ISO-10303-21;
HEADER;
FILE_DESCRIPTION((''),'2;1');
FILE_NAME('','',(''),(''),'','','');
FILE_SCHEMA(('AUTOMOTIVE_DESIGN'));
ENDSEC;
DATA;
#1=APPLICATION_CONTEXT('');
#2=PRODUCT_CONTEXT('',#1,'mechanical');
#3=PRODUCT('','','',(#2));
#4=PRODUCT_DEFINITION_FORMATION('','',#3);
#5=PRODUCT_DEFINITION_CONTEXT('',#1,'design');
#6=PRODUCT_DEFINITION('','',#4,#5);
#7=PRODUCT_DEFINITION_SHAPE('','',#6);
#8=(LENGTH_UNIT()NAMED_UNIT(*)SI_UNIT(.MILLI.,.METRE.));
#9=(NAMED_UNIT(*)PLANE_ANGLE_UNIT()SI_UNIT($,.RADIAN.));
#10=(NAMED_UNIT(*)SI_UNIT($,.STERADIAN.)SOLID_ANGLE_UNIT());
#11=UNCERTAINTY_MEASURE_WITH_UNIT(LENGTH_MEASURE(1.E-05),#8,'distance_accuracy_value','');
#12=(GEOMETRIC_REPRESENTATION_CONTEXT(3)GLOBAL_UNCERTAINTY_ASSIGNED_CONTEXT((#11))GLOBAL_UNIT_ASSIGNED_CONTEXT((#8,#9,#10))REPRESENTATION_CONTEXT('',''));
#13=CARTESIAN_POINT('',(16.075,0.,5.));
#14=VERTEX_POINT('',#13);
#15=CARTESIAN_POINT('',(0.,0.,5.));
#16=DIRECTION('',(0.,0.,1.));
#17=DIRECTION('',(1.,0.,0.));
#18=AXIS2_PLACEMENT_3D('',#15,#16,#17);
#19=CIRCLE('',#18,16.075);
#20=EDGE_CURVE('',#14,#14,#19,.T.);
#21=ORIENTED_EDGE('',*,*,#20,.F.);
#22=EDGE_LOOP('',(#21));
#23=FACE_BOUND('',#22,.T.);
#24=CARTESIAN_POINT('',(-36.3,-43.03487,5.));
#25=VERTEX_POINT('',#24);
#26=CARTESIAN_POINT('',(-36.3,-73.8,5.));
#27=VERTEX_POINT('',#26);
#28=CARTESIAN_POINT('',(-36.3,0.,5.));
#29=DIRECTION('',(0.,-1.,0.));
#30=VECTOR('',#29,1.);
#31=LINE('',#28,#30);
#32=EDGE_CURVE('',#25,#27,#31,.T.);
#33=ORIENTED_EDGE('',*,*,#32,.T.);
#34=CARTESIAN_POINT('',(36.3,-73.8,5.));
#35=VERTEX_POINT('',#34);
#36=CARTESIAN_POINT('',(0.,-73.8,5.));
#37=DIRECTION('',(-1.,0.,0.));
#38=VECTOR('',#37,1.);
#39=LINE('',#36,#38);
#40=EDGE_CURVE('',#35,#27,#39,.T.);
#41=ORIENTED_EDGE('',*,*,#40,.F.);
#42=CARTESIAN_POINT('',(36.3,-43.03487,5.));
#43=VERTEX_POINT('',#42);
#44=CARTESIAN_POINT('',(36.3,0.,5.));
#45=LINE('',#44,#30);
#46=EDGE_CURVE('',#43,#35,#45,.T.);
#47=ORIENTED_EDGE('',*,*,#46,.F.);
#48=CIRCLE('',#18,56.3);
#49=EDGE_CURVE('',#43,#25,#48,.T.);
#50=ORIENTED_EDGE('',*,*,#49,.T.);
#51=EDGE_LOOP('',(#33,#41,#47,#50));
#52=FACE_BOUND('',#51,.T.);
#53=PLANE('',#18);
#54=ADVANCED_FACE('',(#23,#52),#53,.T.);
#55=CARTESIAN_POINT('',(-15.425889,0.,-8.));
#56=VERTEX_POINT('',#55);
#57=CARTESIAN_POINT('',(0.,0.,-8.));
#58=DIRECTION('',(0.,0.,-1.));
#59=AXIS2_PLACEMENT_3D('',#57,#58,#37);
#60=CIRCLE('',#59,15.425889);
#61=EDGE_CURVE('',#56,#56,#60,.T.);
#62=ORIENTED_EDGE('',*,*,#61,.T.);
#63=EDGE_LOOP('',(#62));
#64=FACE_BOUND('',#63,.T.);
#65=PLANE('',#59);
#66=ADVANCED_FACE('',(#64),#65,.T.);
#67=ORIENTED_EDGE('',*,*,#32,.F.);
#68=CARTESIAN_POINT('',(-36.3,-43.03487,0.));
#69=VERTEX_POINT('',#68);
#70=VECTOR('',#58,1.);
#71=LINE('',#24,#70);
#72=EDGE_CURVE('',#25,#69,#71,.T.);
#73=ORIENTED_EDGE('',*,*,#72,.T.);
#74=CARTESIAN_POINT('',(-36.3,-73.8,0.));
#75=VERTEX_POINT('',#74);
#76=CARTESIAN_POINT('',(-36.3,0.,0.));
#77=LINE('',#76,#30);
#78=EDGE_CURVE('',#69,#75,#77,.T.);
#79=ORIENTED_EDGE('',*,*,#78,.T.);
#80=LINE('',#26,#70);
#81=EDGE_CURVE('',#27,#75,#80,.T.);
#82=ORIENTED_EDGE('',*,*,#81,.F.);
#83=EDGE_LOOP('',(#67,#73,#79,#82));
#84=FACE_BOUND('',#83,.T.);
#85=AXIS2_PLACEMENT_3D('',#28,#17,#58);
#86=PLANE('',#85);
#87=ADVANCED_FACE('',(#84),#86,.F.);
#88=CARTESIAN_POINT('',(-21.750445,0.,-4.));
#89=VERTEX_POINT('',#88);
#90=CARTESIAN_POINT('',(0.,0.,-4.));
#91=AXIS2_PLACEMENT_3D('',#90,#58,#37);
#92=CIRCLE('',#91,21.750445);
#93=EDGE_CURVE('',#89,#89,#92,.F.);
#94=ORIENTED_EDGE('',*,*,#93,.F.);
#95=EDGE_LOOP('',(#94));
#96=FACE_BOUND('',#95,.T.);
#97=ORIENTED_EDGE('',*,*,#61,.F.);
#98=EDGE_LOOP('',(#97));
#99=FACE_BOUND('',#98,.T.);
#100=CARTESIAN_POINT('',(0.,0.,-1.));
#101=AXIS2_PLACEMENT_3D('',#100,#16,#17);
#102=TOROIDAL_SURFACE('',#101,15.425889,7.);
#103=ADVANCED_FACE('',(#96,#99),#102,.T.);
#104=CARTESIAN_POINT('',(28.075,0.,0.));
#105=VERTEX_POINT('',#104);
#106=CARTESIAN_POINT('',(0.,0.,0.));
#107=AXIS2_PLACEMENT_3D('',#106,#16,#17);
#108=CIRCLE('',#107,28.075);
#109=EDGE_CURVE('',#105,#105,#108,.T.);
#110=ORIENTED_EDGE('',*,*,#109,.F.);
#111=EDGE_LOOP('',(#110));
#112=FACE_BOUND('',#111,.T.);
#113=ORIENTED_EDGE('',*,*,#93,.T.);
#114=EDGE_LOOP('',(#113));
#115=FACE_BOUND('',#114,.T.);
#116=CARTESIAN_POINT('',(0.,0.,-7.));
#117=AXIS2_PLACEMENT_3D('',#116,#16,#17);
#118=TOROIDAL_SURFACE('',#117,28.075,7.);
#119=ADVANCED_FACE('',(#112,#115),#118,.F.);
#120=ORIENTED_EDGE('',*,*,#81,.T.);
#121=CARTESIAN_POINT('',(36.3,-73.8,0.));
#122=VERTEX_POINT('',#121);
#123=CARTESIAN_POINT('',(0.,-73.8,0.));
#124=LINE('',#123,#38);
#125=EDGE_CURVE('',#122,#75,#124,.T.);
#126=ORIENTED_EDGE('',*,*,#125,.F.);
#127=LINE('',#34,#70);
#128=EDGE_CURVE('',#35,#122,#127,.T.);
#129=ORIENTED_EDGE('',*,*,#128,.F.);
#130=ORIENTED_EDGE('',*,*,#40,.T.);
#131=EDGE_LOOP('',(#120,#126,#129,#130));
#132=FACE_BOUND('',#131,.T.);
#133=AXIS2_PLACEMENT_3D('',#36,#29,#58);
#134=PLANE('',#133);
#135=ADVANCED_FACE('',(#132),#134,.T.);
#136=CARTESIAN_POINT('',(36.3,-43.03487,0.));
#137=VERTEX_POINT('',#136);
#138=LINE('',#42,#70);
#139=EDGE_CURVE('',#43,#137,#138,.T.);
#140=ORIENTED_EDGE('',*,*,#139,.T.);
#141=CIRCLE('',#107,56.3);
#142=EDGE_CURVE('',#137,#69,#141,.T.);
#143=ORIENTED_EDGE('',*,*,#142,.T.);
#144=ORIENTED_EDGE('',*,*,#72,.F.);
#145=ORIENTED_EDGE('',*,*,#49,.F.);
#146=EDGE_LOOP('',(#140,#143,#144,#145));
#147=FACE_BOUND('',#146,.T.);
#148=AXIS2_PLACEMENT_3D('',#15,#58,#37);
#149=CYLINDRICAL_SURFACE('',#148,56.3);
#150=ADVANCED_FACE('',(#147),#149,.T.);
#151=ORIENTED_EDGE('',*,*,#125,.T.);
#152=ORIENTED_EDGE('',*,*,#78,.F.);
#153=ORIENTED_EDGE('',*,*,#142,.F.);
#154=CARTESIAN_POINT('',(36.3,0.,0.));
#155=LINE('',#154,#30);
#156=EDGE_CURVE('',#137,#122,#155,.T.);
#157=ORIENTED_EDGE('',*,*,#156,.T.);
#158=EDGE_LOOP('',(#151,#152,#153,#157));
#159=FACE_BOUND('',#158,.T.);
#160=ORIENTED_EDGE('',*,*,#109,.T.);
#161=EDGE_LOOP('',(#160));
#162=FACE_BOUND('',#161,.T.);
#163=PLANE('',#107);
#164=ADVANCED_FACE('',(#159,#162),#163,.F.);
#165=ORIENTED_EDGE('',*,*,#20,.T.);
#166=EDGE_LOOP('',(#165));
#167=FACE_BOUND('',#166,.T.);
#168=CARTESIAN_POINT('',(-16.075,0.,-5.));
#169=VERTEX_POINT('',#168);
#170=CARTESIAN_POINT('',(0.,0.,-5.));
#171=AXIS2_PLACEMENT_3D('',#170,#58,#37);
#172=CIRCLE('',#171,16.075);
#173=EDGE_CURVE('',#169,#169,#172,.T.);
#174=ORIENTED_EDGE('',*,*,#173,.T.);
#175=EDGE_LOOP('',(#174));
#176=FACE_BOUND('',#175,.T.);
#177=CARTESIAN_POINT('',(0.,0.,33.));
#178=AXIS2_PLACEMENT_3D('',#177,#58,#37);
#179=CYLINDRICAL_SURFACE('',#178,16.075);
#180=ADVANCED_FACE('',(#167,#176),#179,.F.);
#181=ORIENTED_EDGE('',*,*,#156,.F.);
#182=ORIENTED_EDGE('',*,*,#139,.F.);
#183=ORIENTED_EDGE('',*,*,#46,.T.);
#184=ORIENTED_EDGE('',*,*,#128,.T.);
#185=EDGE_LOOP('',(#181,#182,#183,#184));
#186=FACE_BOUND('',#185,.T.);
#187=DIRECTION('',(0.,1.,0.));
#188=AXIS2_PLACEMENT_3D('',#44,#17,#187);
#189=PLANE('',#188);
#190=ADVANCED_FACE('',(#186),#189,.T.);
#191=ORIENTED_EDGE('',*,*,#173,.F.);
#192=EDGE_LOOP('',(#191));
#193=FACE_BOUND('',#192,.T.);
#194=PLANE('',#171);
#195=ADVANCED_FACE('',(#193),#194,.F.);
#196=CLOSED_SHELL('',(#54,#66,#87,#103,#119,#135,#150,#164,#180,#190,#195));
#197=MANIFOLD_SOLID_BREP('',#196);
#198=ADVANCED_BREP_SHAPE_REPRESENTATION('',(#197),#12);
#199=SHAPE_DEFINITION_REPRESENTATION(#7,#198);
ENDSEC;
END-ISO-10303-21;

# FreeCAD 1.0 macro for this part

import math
import FreeCAD as App
import Part
import Sketcher
from FreeCAD import Vector
Q = App.Units.Quantity


def edges_at(feature, points):
    """Names of the edges that pass closest to the given points."""
    edges = feature.Shape.Edges
    near = lambda p: min(range(len(edges)), key=lambda i: edges[i].distToShape(Part.Vertex(*p))[0])
    return sorted({f"Edge{near(p) + 1}" for p in points})

doc = App.newDocument("Part")
params = doc.addObject("Spreadsheet::Sheet", "Params")
for row, (alias, value) in enumerate([
    ("sketch1_radius", "56.3 mm"),
    ("sketch1_width", "72.6 mm"),
    ("pad1_length", "5 mm"),
    ("sketch2_diameter", "32.15 mm"),
    ("pocket1_length", "33 mm"),
    ("sketch3_diameter", "42.15 mm"),
    ("sketch3_diameter2", "32.15 mm"),
    ("pad2_length", "5 mm"),
    ("sketch4_diameter", "42.15 mm"),
    ("pad3_length", "3 mm"),
    ("fillet_radius", "7 mm"),
    ("fillet2_radius", "7 mm"),
], start=1):
    params.set(f"A{row}", alias)
    params.set(f"B{row}", "=" + value)
    params.setAlias(f"B{row}", alias)

body = doc.addObject("PartDesign::Body", "Body")

sketch1 = doc.addObject("Sketcher::SketchObject", "Sketch")
body.addObject(sketch1)
sketch1.AttachmentSupport = (doc.XY_Plane, [""])
sketch1.MapMode = "FlatFace"
sketch1.addGeometry(Part.ArcOfCircle(Part.Circle(Vector(0, 0, 0), Vector(0, 0, 1), 56), math.radians(-50), math.radians(230)), False)
sketch1.addGeometry(Part.LineSegment(Vector(-36, -43, 0), Vector(-36, -74, 0)), False)
sketch1.addGeometry(Part.LineSegment(Vector(-36, -74, 0), Vector(36, -74, 0)), False)
sketch1.addGeometry(Part.LineSegment(Vector(36, -74, 0), Vector(36, -43, 0)), False)
sketch1.addConstraint(Sketcher.Constraint("Coincident", 0, 2, 1, 1))
sketch1.addConstraint(Sketcher.Constraint("Coincident", 1, 2, 2, 1))
sketch1.addConstraint(Sketcher.Constraint("Coincident", 2, 2, 3, 1))
sketch1.addConstraint(Sketcher.Constraint("Coincident", 3, 2, 0, 1))
sketch1.addConstraint(Sketcher.Constraint("Vertical", 1))
sketch1.addConstraint(Sketcher.Constraint("Horizontal", 2))
sketch1.addConstraint(Sketcher.Constraint("Vertical", 3))
sketch1.addConstraint(Sketcher.Constraint("Coincident", 0, 3, -1, 1))
sketch1.addConstraint(Sketcher.Constraint("Horizontal", 0, 2, 3, 2))
sketch1.addConstraint(Sketcher.Constraint("Radius", 0, Q("56.3 mm")))
sketch1.addConstraint(Sketcher.Constraint("DistanceX", 2, 1, 2, 2, Q("72.6 mm")))
sketch1.addConstraint(Sketcher.Constraint("DistanceY", 1, 2, -1, 1, Q("73.8 mm")))
sketch1.setExpression("Constraints[9]", "Params.sketch1_radius")
sketch1.setExpression("Constraints[10]", "Params.sketch1_width")
pad1 = doc.addObject("PartDesign::Pad", "Pad")
body.addObject(pad1)
pad1.Profile = sketch1
pad1.setExpression("Length", "Params.pad1_length")

sketch2 = doc.addObject("Sketcher::SketchObject", "Sketch001")
body.addObject(sketch2)
sketch2.AttachmentSupport = (doc.XY_Plane, [""])
sketch2.MapMode = "FlatFace"
sketch2.addGeometry(Part.Circle(Vector(0, 0, 0), Vector(0, 0, 1), 16), False)
sketch2.addConstraint(Sketcher.Constraint("Coincident", 0, 3, -1, 1))
sketch2.addConstraint(Sketcher.Constraint("Diameter", 0, Q("32.15 mm")))
sketch2.setExpression("Constraints[1]", "Params.sketch2_diameter")
pocket1 = doc.addObject("PartDesign::Pocket", "Pocket")
body.addObject(pocket1)
pocket1.Profile = sketch2
pocket1.setExpression("Length", "Params.pocket1_length")
pocket1.Reversed = True

sketch3 = doc.addObject("Sketcher::SketchObject", "Sketch002")
body.addObject(sketch3)
sketch3.AttachmentSupport = (doc.XY_Plane, [""])
sketch3.MapMode = "FlatFace"
sketch3.AttachmentOffset = App.Placement(Vector(0, 0, -5), App.Rotation())
sketch3.addGeometry(Part.Circle(Vector(0, 0, 0), Vector(0, 0, 1), 21), False)
sketch3.addGeometry(Part.Circle(Vector(0, 0, 0), Vector(0, 0, 1), 16), False)
sketch3.addConstraint(Sketcher.Constraint("Coincident", 0, 3, -1, 1))
sketch3.addConstraint(Sketcher.Constraint("Coincident", 1, 3, -1, 1))
sketch3.addConstraint(Sketcher.Constraint("Diameter", 0, Q("42.15 mm")))
sketch3.addConstraint(Sketcher.Constraint("Diameter", 1, Q("32.15 mm")))
sketch3.setExpression("Constraints[2]", "Params.sketch3_diameter")
sketch3.setExpression("Constraints[3]", "Params.sketch3_diameter2")
pad2 = doc.addObject("PartDesign::Pad", "Pad001")
body.addObject(pad2)
pad2.Profile = sketch3
pad2.setExpression("Length", "Params.pad2_length")

sketch4 = doc.addObject("Sketcher::SketchObject", "Sketch003")
body.addObject(sketch4)
sketch4.AttachmentSupport = (doc.XY_Plane, [""])
sketch4.MapMode = "FlatFace"
sketch4.AttachmentOffset = App.Placement(Vector(0, 0, -8), App.Rotation())
sketch4.addGeometry(Part.Circle(Vector(0, 0, 0), Vector(0, 0, 1), 21), False)
sketch4.addConstraint(Sketcher.Constraint("Coincident", 0, 3, -1, 1))
sketch4.addConstraint(Sketcher.Constraint("Diameter", 0, Q("42.15 mm")))
sketch4.setExpression("Constraints[1]", "Params.sketch4_diameter")
pad3 = doc.addObject("PartDesign::Pad", "Pad002")
body.addObject(pad3)
pad3.Profile = sketch4
pad3.setExpression("Length", "Params.pad3_length")
doc.recompute()

fillet = doc.addObject("PartDesign::Fillet", "Fillet")
body.addObject(fillet)
fillet.Base = (pad3, edges_at(pad3, [(-21.075, 0, 0)]))
fillet.setExpression("Radius", "Params.fillet_radius")
doc.recompute()

fillet2 = doc.addObject("PartDesign::Fillet", "Fillet001")
body.addObject(fillet2)
fillet2.Base = (fillet, edges_at(fillet, [(-21.075, 0, -8)]))
fillet2.setExpression("Radius", "Params.fillet2_radius")

doc.recompute()
